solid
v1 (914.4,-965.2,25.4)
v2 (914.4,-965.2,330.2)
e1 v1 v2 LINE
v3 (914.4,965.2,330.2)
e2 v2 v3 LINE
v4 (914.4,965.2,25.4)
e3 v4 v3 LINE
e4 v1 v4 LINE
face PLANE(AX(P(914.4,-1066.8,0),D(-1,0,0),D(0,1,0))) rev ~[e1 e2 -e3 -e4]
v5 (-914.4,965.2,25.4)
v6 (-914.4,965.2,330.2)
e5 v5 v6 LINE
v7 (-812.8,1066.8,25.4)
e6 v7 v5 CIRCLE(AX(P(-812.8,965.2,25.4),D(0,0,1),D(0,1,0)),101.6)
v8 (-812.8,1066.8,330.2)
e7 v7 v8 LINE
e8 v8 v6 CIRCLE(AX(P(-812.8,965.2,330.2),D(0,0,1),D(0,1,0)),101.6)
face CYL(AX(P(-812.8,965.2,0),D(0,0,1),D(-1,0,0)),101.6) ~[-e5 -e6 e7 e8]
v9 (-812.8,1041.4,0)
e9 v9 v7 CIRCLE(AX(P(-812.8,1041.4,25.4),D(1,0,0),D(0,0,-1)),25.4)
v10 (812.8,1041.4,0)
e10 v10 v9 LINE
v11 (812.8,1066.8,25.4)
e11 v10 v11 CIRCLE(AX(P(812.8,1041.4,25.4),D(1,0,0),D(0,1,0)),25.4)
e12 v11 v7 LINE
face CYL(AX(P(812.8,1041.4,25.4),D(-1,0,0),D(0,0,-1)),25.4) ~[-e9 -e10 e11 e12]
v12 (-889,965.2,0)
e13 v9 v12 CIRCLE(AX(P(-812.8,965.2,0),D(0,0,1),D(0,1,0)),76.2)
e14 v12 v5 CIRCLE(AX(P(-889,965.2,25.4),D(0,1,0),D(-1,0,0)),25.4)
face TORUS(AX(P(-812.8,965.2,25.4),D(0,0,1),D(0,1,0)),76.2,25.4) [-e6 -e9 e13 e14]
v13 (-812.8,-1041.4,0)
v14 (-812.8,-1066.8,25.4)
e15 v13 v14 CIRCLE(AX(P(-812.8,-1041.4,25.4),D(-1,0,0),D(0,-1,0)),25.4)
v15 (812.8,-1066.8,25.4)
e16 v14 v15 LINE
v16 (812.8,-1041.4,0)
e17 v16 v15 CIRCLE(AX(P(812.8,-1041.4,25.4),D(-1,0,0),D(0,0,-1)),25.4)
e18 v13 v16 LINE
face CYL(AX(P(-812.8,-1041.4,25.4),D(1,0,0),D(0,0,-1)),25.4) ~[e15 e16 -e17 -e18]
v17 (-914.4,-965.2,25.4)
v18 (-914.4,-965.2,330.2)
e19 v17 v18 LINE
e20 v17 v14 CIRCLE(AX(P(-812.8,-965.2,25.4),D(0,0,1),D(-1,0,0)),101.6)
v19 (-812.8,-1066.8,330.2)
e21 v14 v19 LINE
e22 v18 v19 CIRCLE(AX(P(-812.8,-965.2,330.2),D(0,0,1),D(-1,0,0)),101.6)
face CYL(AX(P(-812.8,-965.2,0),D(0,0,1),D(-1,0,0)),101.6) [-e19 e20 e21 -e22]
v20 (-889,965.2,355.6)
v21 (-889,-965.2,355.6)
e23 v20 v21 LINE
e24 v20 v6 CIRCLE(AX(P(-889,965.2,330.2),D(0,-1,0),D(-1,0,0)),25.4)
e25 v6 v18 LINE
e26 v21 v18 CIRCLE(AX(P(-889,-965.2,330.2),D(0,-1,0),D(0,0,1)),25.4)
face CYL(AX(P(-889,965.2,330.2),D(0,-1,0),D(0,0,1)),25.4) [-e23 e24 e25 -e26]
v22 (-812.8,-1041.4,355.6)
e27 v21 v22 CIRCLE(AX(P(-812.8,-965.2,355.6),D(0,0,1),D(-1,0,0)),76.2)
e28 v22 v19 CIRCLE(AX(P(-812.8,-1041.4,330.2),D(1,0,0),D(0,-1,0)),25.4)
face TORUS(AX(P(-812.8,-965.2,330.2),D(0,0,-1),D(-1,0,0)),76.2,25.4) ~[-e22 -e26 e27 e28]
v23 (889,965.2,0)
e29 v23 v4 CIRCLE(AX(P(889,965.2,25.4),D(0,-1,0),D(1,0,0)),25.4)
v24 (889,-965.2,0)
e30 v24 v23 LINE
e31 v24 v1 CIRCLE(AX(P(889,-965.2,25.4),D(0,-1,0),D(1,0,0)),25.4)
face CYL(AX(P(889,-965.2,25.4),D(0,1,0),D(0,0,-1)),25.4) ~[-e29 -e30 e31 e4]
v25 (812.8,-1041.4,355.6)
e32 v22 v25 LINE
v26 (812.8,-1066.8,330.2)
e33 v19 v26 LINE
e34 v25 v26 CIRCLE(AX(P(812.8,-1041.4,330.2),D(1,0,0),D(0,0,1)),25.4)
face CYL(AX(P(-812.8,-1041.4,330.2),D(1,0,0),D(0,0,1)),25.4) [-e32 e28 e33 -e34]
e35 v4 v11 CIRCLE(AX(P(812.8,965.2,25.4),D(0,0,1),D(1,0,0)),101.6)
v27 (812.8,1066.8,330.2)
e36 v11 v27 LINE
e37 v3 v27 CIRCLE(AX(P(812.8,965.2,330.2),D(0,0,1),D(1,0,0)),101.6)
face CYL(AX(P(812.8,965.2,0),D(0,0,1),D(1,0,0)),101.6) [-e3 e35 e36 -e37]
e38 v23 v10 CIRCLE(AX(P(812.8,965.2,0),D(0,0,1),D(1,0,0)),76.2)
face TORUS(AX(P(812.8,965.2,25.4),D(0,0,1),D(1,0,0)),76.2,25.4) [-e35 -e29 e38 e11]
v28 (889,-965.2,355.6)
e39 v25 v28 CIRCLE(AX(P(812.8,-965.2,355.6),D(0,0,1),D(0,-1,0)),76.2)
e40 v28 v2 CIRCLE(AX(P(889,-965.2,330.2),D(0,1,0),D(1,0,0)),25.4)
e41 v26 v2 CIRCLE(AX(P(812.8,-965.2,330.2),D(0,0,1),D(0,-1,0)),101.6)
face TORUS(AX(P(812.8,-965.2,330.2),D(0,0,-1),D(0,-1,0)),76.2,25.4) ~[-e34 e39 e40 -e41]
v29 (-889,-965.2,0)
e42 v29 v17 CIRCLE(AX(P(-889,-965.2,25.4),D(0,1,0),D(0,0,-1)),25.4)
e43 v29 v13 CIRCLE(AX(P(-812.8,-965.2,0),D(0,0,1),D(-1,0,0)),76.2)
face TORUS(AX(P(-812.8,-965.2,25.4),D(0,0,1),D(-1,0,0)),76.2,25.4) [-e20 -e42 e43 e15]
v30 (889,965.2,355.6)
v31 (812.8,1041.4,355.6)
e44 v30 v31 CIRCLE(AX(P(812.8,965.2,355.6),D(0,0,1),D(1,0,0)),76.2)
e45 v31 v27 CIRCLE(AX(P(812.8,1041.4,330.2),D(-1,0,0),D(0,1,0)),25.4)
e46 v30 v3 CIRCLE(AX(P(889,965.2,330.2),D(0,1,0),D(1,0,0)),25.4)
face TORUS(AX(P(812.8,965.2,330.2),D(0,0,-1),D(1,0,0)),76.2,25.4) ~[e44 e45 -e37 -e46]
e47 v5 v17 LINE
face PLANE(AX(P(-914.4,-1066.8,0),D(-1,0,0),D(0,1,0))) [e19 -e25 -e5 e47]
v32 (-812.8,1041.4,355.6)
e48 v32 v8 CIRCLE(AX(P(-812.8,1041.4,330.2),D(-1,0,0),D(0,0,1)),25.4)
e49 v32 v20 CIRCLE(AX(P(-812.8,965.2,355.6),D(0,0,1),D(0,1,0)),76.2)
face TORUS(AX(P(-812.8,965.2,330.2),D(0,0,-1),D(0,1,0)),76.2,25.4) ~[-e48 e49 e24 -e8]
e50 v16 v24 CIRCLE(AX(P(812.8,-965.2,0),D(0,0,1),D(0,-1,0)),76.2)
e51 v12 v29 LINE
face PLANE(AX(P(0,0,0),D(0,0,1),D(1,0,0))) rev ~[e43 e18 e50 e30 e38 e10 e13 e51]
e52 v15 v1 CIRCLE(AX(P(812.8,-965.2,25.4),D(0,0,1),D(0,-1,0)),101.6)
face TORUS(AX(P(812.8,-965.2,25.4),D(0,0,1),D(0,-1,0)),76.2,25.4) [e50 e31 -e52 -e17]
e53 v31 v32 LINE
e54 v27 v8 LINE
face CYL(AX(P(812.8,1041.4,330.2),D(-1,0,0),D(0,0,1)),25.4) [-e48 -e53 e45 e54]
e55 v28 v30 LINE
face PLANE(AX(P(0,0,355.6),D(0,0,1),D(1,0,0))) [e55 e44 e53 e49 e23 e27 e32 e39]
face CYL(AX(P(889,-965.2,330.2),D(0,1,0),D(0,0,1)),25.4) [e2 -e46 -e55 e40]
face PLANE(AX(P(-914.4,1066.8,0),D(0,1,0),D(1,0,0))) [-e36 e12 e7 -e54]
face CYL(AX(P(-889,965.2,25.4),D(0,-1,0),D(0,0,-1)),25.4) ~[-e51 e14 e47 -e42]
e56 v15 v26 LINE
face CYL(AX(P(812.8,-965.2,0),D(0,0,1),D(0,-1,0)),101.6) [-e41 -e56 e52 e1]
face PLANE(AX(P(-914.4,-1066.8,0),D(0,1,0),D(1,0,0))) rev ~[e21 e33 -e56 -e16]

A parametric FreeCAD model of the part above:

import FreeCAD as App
import Part
import Sketcher

V = App.Vector
Q = App.Units.Quantity


def edges_at(feature, points):
    """Names of the edges that pass closest to the given points."""
    edges = feature.Shape.Edges
    near = lambda p: min(range(len(edges)), key=lambda i: edges[i].distToShape(Part.Vertex(*p))[0])
    return sorted({f"Edge{near(p) + 1}" for p in points})

doc = App.newDocument("Part")
params = doc.addObject("Spreadsheet::Sheet", "Params")
for row, (alias, value) in enumerate([
    ("sketch1_width", "72 in"),
    ("sketch1_height", "84 in"),
    ("pad1_length", "14 in"),
    ("fillet_radius", "4 in"),
    ("fillet2_radius", "1 in"),
], start=1):
    params.set(f"A{row}", alias)
    params.set(f"B{row}", "=" + value)
    params.setAlias(f"B{row}", alias)

body = doc.addObject("PartDesign::Body", "Body")

sketch1 = doc.addObject("Sketcher::SketchObject", "Sketch")
body.addObject(sketch1)
sketch1.AttachmentSupport = (doc.XY_Plane, [""])
sketch1.MapMode = "FlatFace"
sketch1.addGeometry([
    Part.LineSegment(V(-914.4, 1066.8, 0), V(-914.4, -1066.8, 0)),
    Part.LineSegment(V(-914.4, -1066.8, 0), V(914.4, -1066.8, 0)),
    Part.LineSegment(V(914.4, -1066.8, 0), V(914.4, 1066.8, 0)),
    Part.LineSegment(V(914.4, 1066.8, 0), V(-914.4, 1066.8, 0)),
], False)
sketch1.addConstraint([
    Sketcher.Constraint("Coincident", 0, 2, 1, 1),
    Sketcher.Constraint("Coincident", 1, 2, 2, 1),
    Sketcher.Constraint("Coincident", 2, 2, 3, 1),
    Sketcher.Constraint("Coincident", 3, 2, 0, 1),
    Sketcher.Constraint("Vertical", 0),
    Sketcher.Constraint("Horizontal", 1),
    Sketcher.Constraint("Vertical", 2),
    Sketcher.Constraint("Horizontal", 3),
    Sketcher.Constraint("Symmetric", 0, 2, 2, 2, -1, 1),
    Sketcher.Constraint("DistanceX", 1, 1, 1, 2, Q("72 in")),
    Sketcher.Constraint("DistanceY", 0, 2, 0, 1, Q("84 in")),
])
sketch1.setExpression("Constraints[9]", "Params.sketch1_width")
sketch1.setExpression("Constraints[10]", "Params.sketch1_height")
pad1 = doc.addObject("PartDesign::Pad", "Pad")
body.addObject(pad1)
pad1.Profile = sketch1
pad1.setExpression("Length", "Params.pad1_length")
doc.recompute()

fillet = doc.addObject("PartDesign::Fillet", "Fillet")
body.addObject(fillet)
fillet.Base = (pad1, edges_at(pad1, [
    (-914.4, -1066.8, 177.8),
    (914.4, -1066.8, 177.8),
    (914.4, 1066.8, 177.8),
    (-914.4, 1066.8, 177.8),
]))
fillet.setExpression("Radius", "Params.fillet_radius")
doc.recompute()

fillet2 = doc.addObject("PartDesign::Fillet", "Fillet001")
body.addObject(fillet2)
fillet2.Base = (fillet, edges_at(fillet, [(884.642, 1037.042, 355.6), (884.642, 1037.042, 0)]))
fillet2.setExpression("Radius", "Params.fillet2_radius")

doc.recompute()
